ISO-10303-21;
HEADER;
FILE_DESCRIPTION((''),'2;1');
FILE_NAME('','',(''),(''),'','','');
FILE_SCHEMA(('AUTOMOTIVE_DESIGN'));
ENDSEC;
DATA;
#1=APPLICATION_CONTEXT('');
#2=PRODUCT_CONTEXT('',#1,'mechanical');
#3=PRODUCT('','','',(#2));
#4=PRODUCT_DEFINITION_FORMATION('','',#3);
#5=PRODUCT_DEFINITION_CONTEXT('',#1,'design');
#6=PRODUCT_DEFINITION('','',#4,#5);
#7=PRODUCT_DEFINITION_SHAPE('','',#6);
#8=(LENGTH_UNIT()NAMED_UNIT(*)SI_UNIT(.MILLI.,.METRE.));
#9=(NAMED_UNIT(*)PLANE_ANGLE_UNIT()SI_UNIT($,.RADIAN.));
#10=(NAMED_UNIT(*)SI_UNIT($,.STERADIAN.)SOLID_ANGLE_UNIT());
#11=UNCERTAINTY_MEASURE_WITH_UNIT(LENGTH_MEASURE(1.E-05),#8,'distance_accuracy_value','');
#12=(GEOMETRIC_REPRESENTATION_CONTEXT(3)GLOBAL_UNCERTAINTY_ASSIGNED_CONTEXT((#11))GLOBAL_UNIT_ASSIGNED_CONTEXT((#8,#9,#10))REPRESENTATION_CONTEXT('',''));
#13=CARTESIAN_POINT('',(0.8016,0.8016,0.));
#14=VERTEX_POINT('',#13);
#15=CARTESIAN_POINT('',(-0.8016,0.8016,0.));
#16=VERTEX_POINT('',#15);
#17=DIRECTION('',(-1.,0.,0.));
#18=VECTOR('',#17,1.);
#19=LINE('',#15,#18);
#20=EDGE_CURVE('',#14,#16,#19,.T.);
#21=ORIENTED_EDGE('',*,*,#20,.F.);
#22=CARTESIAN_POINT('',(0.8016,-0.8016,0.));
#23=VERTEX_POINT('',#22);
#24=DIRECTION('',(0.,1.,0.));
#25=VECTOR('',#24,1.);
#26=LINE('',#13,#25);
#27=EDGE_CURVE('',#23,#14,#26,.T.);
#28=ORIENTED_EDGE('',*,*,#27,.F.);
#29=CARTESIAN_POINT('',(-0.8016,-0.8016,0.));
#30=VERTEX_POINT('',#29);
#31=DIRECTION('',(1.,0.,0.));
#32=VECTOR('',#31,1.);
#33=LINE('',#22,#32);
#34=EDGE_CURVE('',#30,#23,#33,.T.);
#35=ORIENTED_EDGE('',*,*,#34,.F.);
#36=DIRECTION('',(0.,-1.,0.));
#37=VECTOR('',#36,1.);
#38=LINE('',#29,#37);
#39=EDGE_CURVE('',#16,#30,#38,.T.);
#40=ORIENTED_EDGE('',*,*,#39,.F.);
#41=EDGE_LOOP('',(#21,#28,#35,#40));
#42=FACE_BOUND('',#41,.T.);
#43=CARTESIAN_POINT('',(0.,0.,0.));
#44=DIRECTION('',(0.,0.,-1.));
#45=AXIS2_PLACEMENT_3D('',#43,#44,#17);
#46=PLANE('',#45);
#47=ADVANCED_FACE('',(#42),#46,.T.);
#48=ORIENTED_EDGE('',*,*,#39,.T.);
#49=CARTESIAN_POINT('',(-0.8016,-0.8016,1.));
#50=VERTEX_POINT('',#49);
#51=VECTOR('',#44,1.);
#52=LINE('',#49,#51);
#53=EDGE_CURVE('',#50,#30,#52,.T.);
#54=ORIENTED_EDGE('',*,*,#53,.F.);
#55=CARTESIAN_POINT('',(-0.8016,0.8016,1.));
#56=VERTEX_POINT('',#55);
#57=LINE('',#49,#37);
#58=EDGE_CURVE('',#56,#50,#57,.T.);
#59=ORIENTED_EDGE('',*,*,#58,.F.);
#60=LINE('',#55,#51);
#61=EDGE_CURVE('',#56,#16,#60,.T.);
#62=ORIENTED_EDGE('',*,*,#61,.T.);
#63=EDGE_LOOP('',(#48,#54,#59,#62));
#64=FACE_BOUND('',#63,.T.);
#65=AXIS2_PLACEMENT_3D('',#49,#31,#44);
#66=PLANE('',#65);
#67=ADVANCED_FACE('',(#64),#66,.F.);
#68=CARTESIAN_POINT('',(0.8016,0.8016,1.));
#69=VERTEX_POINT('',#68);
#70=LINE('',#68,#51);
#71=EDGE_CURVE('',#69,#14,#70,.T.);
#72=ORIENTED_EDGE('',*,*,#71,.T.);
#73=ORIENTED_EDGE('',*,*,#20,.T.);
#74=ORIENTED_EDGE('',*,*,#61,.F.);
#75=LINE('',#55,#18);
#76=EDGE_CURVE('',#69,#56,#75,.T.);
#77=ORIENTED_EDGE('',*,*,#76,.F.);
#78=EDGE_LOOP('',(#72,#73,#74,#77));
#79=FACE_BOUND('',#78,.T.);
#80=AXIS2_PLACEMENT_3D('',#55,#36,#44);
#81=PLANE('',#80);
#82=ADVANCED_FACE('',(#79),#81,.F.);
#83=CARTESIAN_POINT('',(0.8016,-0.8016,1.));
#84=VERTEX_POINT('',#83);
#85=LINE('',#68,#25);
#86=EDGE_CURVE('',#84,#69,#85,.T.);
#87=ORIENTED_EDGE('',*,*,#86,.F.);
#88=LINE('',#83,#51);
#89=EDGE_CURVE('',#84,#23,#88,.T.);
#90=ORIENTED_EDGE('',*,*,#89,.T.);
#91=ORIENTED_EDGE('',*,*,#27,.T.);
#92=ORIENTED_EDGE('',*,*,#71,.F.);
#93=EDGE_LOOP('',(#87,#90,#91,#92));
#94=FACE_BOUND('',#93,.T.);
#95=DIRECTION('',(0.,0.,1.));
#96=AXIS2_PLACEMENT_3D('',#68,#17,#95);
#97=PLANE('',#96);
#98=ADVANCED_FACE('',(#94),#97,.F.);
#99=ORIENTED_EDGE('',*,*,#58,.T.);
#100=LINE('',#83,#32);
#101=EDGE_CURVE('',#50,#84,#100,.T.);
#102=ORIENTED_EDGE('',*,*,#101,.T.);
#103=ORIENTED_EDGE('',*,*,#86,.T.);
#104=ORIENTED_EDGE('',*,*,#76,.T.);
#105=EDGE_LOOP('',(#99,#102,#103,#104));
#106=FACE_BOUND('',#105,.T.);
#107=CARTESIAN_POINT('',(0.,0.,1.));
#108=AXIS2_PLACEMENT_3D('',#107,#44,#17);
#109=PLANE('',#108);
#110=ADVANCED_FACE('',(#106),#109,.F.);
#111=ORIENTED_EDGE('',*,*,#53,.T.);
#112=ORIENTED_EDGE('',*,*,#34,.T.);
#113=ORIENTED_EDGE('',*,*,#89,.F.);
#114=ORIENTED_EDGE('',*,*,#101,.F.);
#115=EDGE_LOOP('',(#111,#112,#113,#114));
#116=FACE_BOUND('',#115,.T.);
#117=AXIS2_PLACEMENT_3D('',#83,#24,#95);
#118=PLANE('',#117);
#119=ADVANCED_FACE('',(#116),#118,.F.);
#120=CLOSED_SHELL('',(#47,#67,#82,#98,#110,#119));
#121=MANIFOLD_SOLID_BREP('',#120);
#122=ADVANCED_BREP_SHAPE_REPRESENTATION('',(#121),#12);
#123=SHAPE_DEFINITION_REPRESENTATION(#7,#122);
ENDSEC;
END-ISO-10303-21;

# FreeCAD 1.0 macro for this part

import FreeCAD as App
import Part
import Sketcher
from FreeCAD import Vector
Q = App.Units.Quantity

doc = App.newDocument("Part")
body = doc.addObject("PartDesign::Body", "Body")

sketch1 = body.newObject("Sketcher::SketchObject", "Sketch")
sketch1.AttachmentSupport = (doc.getObject("XY_Plane"), [""])
sketch1.MapMode = "FlatFace"
sketch1.addGeometry(Part.LineSegment(Vector(-0.8016, 0.8016, 0), Vector(-0.8016, -0.8016, 0)), False)
sketch1.addGeometry(Part.LineSegment(Vector(-0.8016, -0.8016, 0), Vector(0.8016, -0.8016, 0)), False)
sketch1.addGeometry(Part.LineSegment(Vector(0.8016, -0.8016, 0), Vector(0.8016, 0.8016, 0)), False)
sketch1.addGeometry(Part.LineSegment(Vector(0.8016, 0.8016, 0), Vector(-0.8016, 0.8016, 0)), False)
sketch1.addConstraint(Sketcher.Constraint("Coincident", 0, 2, 1, 1))
sketch1.addConstraint(Sketcher.Constraint("Coincident", 1, 2, 2, 1))
sketch1.addConstraint(Sketcher.Constraint("Coincident", 2, 2, 3, 1))
sketch1.addConstraint(Sketcher.Constraint("Coincident", 3, 2, 0, 1))
sketch1.addConstraint(Sketcher.Constraint("Vertical", 0))
sketch1.addConstraint(Sketcher.Constraint("Horizontal", 1))
sketch1.addConstraint(Sketcher.Constraint("Vertical", 2))
sketch1.addConstraint(Sketcher.Constraint("Horizontal", 3))
sketch1.addConstraint(Sketcher.Constraint("Symmetric", 0, 2, 2, 2, -1, 1))
sketch1.addConstraint(Sketcher.Constraint("Equal", 3, 0))
sketch1.addConstraint(Sketcher.Constraint("DistanceX", 1, 1, 1, 2, Q("1.6032 mm")))
pad1 = body.newObject("PartDesign::Pad", "Pad")
pad1.Profile = sketch1
pad1.Length = 1

doc.recompute()
